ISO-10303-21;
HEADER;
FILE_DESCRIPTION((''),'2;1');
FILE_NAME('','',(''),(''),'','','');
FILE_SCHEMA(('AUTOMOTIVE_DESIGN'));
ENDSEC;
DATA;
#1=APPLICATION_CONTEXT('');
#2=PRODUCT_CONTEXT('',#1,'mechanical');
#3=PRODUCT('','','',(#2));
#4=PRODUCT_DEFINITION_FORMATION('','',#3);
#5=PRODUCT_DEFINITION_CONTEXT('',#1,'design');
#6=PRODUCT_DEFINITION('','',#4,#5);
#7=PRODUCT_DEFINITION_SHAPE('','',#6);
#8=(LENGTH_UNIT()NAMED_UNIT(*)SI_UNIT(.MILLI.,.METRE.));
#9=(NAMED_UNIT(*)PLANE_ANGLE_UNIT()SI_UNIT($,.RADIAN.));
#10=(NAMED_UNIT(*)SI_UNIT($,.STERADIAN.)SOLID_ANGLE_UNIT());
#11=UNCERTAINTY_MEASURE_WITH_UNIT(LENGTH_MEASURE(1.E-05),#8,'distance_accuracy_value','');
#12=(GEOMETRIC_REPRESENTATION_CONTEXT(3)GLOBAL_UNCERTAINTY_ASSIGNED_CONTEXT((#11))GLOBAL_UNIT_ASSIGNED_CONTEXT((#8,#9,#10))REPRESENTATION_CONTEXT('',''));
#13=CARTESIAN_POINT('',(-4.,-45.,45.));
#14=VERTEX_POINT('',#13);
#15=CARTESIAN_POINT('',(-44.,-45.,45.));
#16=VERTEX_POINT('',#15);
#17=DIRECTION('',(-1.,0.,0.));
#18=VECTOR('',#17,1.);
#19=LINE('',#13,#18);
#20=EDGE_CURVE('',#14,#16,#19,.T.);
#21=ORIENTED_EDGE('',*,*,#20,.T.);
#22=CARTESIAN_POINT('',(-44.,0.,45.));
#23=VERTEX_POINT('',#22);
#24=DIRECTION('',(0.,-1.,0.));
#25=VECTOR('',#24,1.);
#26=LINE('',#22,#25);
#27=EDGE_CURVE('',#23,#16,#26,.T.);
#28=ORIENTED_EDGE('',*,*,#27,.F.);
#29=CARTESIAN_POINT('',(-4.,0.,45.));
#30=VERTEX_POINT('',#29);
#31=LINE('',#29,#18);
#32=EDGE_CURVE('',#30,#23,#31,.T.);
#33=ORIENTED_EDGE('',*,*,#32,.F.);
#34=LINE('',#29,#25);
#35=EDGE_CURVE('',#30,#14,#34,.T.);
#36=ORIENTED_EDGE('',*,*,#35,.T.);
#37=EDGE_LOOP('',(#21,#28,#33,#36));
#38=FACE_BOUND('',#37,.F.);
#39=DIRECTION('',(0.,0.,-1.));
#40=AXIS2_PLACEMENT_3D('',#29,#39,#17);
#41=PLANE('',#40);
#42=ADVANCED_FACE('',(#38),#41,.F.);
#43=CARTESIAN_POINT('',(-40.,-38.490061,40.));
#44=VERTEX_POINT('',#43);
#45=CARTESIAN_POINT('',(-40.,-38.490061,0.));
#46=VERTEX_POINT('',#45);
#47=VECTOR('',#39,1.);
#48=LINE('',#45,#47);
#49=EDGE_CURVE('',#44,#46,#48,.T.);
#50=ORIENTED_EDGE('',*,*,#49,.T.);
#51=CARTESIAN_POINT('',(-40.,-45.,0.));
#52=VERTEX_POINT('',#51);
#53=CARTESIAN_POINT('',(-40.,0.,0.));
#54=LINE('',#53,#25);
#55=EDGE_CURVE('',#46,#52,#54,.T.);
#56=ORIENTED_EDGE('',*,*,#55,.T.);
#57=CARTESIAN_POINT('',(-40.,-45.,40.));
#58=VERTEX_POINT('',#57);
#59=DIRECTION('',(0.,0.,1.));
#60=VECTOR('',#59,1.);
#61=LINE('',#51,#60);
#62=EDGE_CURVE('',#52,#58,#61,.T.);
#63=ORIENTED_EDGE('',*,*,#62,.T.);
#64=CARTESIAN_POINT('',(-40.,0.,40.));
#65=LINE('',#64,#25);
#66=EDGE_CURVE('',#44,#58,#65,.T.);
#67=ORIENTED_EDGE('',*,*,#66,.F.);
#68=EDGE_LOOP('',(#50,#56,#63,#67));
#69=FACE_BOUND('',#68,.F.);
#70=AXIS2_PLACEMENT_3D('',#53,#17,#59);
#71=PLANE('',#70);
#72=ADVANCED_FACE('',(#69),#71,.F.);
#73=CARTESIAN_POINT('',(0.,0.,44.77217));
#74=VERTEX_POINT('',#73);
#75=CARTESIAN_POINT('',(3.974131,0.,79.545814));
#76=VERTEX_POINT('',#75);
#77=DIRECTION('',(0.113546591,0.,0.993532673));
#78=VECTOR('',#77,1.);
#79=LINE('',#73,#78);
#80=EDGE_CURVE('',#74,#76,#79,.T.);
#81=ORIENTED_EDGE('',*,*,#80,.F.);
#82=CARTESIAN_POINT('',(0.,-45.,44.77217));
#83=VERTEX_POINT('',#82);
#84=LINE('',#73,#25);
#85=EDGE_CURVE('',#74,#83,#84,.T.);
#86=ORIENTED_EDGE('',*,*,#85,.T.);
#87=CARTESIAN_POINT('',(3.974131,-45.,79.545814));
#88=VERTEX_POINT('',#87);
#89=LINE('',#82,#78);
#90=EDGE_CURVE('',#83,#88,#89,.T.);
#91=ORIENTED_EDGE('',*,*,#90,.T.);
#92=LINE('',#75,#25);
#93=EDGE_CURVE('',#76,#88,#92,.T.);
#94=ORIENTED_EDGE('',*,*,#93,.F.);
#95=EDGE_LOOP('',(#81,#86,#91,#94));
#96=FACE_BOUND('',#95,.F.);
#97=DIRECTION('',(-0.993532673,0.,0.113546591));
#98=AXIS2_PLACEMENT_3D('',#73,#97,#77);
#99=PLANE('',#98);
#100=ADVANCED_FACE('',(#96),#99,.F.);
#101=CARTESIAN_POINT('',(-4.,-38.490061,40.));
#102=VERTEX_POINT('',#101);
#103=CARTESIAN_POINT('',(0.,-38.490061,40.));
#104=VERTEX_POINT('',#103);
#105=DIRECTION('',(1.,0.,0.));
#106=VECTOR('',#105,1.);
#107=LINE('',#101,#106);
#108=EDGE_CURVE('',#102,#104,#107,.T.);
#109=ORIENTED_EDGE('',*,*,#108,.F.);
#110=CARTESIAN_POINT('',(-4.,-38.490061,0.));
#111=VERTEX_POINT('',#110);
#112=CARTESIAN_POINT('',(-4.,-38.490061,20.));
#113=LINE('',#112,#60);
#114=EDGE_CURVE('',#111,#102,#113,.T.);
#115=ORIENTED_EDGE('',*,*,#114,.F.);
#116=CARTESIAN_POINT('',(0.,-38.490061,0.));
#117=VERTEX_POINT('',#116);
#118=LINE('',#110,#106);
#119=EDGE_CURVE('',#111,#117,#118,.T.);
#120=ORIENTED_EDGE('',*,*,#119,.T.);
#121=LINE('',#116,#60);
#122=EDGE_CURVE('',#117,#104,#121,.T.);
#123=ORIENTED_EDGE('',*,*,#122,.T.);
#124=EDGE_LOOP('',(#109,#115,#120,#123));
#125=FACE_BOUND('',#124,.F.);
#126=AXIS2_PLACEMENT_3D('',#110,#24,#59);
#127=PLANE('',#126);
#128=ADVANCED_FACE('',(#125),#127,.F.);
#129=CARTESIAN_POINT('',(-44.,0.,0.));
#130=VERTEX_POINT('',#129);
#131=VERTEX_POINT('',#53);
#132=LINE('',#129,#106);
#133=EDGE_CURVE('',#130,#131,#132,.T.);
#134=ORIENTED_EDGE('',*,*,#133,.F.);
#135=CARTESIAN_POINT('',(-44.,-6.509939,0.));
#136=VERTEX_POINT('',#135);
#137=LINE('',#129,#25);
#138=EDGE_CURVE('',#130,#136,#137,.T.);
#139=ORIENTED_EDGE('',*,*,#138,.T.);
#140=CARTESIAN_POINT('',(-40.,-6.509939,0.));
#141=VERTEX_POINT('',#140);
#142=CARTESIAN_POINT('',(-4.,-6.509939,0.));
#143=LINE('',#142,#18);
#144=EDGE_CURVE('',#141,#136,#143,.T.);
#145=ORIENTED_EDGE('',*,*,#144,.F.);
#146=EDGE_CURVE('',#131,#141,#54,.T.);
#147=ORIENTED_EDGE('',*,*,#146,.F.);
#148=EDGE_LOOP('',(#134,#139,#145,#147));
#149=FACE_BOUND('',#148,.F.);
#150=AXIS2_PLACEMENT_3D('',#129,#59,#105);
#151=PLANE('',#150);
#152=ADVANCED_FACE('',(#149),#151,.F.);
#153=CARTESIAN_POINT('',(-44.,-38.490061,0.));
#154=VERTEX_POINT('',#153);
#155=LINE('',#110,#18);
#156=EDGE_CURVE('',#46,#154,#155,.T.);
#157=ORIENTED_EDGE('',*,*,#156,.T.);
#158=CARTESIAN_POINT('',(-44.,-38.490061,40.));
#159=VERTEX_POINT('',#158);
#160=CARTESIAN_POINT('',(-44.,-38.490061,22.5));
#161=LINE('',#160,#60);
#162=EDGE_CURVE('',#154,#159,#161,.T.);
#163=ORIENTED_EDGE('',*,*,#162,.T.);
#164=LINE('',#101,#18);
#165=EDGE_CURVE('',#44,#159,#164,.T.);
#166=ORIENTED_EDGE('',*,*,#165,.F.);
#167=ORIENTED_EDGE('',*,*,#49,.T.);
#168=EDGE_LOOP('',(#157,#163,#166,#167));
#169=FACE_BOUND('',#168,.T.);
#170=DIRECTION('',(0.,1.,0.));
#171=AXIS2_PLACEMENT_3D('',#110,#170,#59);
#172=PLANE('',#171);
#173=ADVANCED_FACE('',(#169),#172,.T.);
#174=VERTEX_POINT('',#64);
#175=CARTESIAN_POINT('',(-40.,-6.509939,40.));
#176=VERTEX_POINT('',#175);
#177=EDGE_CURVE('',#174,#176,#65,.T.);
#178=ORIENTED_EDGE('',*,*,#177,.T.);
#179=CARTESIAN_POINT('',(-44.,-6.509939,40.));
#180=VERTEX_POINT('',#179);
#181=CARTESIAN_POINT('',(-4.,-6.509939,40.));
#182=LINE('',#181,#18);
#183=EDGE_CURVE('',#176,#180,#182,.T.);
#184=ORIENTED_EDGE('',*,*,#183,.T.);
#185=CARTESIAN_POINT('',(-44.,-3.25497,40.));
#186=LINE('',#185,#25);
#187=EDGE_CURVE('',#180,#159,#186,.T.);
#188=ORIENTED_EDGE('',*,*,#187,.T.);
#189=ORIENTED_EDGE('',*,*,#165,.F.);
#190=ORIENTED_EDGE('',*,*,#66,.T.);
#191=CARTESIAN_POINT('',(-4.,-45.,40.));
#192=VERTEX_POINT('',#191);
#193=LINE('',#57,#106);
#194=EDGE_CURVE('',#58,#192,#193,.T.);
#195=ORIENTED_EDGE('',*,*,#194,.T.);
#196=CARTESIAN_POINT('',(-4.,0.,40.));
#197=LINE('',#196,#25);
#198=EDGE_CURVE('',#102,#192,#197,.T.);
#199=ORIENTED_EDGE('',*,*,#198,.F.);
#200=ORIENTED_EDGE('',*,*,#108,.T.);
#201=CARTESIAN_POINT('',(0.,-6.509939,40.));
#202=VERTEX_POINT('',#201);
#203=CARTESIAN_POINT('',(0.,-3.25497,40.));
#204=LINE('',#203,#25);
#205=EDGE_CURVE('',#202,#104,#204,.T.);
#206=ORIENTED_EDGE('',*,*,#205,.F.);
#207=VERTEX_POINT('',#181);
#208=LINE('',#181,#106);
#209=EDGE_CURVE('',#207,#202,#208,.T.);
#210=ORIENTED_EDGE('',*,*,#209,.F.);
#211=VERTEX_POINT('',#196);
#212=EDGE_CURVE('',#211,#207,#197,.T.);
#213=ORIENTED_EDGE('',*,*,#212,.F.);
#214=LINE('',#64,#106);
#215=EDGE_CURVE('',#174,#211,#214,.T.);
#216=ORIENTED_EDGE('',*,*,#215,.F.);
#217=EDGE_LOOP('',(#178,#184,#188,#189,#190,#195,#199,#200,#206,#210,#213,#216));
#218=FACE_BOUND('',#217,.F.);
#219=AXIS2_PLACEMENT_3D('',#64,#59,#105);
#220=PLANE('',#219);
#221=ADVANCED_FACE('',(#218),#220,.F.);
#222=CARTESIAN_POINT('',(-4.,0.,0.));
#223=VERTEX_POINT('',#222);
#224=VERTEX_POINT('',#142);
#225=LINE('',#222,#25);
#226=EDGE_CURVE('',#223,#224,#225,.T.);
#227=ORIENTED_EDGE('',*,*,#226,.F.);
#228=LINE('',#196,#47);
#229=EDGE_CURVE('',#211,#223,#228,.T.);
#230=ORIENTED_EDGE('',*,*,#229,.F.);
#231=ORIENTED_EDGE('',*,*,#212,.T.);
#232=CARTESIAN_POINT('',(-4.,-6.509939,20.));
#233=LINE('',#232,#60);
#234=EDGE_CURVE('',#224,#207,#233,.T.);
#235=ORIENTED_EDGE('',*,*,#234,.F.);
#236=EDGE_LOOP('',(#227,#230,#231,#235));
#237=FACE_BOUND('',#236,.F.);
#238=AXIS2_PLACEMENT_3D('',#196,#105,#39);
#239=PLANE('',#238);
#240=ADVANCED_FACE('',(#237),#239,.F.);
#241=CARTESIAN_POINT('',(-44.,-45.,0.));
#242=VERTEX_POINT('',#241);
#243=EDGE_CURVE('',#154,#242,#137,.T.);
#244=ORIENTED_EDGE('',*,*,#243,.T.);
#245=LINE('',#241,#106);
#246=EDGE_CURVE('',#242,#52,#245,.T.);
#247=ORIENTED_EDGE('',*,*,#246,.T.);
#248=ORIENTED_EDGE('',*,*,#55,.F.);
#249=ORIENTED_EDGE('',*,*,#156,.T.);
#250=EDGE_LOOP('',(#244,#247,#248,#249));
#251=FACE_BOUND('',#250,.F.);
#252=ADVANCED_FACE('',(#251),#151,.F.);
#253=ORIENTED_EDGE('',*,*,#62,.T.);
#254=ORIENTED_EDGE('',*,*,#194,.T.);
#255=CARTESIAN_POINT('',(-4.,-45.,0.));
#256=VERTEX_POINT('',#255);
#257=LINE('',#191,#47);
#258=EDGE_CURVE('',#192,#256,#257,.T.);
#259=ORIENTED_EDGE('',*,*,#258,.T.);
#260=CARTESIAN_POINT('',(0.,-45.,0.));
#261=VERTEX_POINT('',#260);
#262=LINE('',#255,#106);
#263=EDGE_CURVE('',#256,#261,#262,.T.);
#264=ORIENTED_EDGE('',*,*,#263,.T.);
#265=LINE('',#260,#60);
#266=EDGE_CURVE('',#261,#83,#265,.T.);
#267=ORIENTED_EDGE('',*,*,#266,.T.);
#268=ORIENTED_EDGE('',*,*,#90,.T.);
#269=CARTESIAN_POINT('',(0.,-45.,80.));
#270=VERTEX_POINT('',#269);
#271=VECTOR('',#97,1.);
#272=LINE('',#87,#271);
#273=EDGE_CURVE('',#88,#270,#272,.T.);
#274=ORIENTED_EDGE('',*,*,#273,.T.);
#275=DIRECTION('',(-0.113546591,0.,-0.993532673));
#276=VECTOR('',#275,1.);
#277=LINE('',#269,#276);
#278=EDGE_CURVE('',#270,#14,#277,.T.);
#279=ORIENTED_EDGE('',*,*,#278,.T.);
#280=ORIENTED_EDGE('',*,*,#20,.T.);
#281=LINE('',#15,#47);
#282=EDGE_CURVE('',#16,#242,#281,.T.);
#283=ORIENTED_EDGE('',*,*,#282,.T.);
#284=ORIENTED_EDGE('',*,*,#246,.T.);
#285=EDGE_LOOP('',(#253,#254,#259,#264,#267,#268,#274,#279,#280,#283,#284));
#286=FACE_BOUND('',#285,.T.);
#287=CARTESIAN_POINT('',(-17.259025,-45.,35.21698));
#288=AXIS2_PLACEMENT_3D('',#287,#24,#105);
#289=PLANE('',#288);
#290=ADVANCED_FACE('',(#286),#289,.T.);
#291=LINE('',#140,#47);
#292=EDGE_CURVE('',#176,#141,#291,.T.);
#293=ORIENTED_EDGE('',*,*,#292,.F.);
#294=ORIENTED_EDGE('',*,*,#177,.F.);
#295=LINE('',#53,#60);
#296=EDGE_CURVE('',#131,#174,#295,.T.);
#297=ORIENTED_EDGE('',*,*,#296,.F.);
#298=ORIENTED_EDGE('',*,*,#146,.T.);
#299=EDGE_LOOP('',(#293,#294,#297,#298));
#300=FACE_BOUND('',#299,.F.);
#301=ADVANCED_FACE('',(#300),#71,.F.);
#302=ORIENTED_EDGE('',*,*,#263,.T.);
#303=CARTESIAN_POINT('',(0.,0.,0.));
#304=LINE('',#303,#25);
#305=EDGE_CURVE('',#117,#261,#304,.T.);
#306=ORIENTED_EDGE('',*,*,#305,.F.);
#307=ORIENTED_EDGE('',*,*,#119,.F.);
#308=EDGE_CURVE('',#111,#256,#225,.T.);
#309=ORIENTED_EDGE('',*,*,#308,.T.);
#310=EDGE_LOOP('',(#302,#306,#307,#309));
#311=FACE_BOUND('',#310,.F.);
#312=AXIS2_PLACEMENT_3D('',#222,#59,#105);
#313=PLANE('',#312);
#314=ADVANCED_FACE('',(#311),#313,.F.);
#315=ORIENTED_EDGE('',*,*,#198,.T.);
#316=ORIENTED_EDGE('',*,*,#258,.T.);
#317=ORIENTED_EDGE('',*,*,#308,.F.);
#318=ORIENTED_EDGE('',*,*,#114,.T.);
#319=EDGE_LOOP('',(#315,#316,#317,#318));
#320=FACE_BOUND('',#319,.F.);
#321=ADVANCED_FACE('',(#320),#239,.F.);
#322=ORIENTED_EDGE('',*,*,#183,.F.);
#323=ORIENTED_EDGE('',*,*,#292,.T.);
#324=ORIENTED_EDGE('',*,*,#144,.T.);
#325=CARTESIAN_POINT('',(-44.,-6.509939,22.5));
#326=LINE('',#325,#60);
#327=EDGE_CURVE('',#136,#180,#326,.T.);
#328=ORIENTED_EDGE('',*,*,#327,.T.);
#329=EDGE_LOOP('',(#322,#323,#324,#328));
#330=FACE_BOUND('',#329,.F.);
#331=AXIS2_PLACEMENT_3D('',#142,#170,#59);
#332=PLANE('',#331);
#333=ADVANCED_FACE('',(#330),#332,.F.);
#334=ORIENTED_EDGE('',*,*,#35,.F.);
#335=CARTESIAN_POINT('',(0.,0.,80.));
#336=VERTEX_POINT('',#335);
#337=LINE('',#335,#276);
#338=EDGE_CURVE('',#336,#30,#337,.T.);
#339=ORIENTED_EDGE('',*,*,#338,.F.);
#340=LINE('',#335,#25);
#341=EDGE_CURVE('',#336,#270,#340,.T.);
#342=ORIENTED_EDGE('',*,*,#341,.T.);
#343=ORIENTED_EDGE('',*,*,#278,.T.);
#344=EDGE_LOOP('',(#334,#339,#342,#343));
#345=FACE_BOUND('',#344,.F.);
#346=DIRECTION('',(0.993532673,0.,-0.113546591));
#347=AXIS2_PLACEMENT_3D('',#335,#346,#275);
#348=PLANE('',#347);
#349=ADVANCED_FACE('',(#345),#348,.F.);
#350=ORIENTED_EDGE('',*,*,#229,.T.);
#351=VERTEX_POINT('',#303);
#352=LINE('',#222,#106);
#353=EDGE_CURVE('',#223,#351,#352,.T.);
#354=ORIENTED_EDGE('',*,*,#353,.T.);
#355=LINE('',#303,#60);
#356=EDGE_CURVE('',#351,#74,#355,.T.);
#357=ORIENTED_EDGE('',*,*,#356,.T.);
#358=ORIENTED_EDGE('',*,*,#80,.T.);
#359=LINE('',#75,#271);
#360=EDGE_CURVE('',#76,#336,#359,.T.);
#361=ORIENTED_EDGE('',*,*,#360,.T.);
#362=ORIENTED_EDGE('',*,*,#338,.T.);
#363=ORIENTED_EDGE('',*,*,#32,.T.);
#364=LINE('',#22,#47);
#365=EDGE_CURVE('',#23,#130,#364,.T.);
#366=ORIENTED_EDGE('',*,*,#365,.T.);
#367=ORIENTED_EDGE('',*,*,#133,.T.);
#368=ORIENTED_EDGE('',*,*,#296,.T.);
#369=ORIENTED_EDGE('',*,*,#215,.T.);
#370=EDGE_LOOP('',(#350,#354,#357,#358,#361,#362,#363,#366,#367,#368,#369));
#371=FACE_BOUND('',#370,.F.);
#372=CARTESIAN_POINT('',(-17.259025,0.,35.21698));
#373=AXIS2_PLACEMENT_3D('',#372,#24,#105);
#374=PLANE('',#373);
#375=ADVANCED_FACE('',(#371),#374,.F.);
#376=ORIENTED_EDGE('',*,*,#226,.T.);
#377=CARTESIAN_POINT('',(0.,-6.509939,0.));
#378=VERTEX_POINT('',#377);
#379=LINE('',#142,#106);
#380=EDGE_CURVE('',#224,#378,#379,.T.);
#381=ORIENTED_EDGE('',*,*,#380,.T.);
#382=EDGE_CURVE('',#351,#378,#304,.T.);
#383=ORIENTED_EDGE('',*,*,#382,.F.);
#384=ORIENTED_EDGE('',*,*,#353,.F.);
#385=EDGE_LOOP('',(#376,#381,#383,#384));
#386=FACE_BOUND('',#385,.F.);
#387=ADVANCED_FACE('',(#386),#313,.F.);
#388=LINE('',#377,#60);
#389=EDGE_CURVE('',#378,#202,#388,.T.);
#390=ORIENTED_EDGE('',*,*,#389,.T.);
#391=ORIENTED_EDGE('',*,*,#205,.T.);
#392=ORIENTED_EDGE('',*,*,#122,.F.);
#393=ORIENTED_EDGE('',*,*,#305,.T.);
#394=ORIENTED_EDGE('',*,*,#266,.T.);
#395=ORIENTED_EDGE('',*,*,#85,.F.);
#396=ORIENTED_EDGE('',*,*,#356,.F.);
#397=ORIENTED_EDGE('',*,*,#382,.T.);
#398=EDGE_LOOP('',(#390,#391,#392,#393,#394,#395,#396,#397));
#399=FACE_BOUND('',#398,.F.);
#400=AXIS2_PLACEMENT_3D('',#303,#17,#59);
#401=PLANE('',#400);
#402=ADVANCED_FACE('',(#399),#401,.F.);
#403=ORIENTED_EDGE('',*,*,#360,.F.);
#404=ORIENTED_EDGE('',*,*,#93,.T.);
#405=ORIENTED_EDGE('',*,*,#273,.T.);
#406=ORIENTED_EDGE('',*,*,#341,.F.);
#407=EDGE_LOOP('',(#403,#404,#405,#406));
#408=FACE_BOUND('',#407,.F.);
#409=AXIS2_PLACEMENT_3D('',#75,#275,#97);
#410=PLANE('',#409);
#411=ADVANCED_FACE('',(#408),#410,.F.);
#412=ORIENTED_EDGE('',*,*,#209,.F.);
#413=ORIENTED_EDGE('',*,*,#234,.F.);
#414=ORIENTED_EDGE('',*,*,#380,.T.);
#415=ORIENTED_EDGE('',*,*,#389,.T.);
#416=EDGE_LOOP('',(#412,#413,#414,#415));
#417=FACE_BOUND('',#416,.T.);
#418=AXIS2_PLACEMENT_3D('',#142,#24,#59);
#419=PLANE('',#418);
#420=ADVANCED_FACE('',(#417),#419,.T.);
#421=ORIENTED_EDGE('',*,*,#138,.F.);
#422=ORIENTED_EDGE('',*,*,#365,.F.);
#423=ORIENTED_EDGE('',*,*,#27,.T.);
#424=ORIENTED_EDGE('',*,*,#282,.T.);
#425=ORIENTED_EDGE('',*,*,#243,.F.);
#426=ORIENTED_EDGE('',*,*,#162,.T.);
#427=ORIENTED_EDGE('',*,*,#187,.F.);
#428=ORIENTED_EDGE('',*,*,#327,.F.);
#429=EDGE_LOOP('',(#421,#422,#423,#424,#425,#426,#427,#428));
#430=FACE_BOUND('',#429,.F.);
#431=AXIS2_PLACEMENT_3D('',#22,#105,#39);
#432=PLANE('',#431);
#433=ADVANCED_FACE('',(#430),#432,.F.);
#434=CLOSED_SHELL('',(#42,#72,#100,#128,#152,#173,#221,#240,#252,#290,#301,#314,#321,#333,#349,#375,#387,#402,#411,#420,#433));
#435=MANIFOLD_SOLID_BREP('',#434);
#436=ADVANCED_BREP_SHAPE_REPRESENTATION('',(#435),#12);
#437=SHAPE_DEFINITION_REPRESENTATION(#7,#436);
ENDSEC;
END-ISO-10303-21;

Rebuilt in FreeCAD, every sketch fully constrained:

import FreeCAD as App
import Part
import Sketcher

V = App.Vector

doc = App.newDocument("Part")
body = doc.addObject("PartDesign::Body", "Body")

# Sketch on XZ plane
sketch1 = doc.addObject("Sketcher::SketchObject", "Sketch")
body.addObject(sketch1)
sketch1.AttachmentSupport = (doc.XZ_Plane, [""])
sketch1.MapMode = "FlatFace"
sketch1.addGeometry([
    Part.LineSegment(V(-4, 0, 0), V(0, 0, 0)),  # 0
    Part.LineSegment(V(0, 0, 0), V(0, 44.77217, 0)),  # 1
    Part.LineSegment(V(0, 44.77217, 0), V(3.974131, 79.545814, 0)),  # 2
    Part.LineSegment(V(3.974131, 79.545814, 0), V(0, 80, 0)),  # 3
    Part.LineSegment(V(0, 80, 0), V(-4, 45, 0)),  # 4
    Part.LineSegment(V(-4, 45, 0), V(-44, 45, 0)),  # 5
    Part.LineSegment(V(-44, 45, 0), V(-44, 0, 0)),  # 6
    Part.LineSegment(V(-44, 0, 0), V(-40, 0, 0)),  # 7
    Part.LineSegment(V(-40, 0, 0), V(-40, 40, 0)),  # 8
    Part.LineSegment(V(-40, 40, 0), V(-4, 40, 0)),  # 9
    Part.LineSegment(V(-4, 40, 0), V(-4, 0, 0)),  # 10
], False)
sketch1.addConstraint([
    Sketcher.Constraint("Coincident", 0, 2, 1, 1),
    Sketcher.Constraint("Coincident", 1, 2, 2, 1),
    Sketcher.Constraint("Coincident", 2, 2, 3, 1),
    Sketcher.Constraint("Coincident", 3, 2, 4, 1),
    Sketcher.Constraint("Coincident", 4, 2, 5, 1),
    Sketcher.Constraint("Coincident", 5, 2, 6, 1),
    Sketcher.Constraint("Coincident", 6, 2, 7, 1),
    Sketcher.Constraint("Coincident", 7, 2, 8, 1),
    Sketcher.Constraint("Coincident", 8, 2, 9, 1),
    Sketcher.Constraint("Coincident", 9, 2, 10, 1),
    Sketcher.Constraint("Coincident", 10, 2, 0, 1),
    Sketcher.Constraint("Horizontal", 0),
    Sketcher.Constraint("Vertical", 1),
    Sketcher.Constraint("Horizontal", 5),
    Sketcher.Constraint("Vertical", 6),
    Sketcher.Constraint("Horizontal", 7),
    Sketcher.Constraint("Vertical", 8),
    Sketcher.Constraint("Horizontal", 9),
    Sketcher.Constraint("Vertical", 10),
    Sketcher.Constraint("Coincident", 0, 2, -1, 1),
    Sketcher.Constraint("PointOnObject", 3, 2, -2),
    Sketcher.Constraint("PointOnObject", 6, 2, -1),
    Sketcher.Constraint("Perpendicular", 2, 3),
    Sketcher.Constraint("Perpendicular", 3, 4),
    Sketcher.Constraint("Vertical", 4, 2, 9, 2),
    Sketcher.Constraint("Equal", 0, 7),
    Sketcher.Constraint("Equal", 5, 8),
    Sketcher.Constraint("DistanceX", 0, 1, 0, 2, 4.0),
    Sketcher.Constraint("DistanceX", 5, 2, 5, 1, 40.0),
    Sketcher.Constraint("DistanceY", 6, 2, 6, 1, 45.0),
    Sketcher.Constraint("Distance", 2, 35.0),
    Sketcher.Constraint("Distance", 3, 4.0),
])
pad1 = doc.addObject("PartDesign::Pad", "Pad")
body.addObject(pad1)
pad1.Profile = sketch1
pad1.Length = 45

# Sketch on YZ plane
sketch2 = doc.addObject("Sketcher::SketchObject", "Sketch001")
body.addObject(sketch2)
sketch2.AttachmentSupport = (doc.YZ_Plane, [""])
sketch2.MapMode = "FlatFace"
sketch2.AttachmentOffset = App.Placement(V(0, 0, -4), App.Rotation())
sketch2.addGeometry([
    Part.LineSegment(V(-6.509939, 40, 0), V(-6.509939, 0, 0)),
    Part.LineSegment(V(-6.509939, 0, 0), V(-38.490061, 0, 0)),
    Part.LineSegment(V(-38.490061, 0, 0), V(-38.490061, 40, 0)),
    Part.LineSegment(V(-38.490061, 40, 0), V(-6.509939, 40, 0)),
], False)
sketch2.addConstraint([
    Sketcher.Constraint("Coincident", 0, 2, 1, 1),
    Sketcher.Constraint("Coincident", 1, 2, 2, 1),
    Sketcher.Constraint("Coincident", 2, 2, 3, 1),
    Sketcher.Constraint("Coincident", 3, 2, 0, 1),
    Sketcher.Constraint("Vertical", 0),
    Sketcher.Constraint("Horizontal", 1),
    Sketcher.Constraint("Vertical", 2),
    Sketcher.Constraint("Horizontal", 3),
    Sketcher.Constraint("PointOnObject", 0, 2, -1),
    Sketcher.Constraint("DistanceY", 0, 2, 0, 1, 40.0),
    Sketcher.Constraint("DistanceX", 1, 2, 1, 1, 31.980121),
    Sketcher.Constraint("DistanceX", 0, 2, -1, 1, 6.509939),
])
pocket1 = doc.addObject("PartDesign::Pocket", "Pocket")
body.addObject(pocket1)
pocket1.Profile = sketch2
pocket1.Type = "ThroughAll"
pocket1.Midplane = True

doc.recompute()
